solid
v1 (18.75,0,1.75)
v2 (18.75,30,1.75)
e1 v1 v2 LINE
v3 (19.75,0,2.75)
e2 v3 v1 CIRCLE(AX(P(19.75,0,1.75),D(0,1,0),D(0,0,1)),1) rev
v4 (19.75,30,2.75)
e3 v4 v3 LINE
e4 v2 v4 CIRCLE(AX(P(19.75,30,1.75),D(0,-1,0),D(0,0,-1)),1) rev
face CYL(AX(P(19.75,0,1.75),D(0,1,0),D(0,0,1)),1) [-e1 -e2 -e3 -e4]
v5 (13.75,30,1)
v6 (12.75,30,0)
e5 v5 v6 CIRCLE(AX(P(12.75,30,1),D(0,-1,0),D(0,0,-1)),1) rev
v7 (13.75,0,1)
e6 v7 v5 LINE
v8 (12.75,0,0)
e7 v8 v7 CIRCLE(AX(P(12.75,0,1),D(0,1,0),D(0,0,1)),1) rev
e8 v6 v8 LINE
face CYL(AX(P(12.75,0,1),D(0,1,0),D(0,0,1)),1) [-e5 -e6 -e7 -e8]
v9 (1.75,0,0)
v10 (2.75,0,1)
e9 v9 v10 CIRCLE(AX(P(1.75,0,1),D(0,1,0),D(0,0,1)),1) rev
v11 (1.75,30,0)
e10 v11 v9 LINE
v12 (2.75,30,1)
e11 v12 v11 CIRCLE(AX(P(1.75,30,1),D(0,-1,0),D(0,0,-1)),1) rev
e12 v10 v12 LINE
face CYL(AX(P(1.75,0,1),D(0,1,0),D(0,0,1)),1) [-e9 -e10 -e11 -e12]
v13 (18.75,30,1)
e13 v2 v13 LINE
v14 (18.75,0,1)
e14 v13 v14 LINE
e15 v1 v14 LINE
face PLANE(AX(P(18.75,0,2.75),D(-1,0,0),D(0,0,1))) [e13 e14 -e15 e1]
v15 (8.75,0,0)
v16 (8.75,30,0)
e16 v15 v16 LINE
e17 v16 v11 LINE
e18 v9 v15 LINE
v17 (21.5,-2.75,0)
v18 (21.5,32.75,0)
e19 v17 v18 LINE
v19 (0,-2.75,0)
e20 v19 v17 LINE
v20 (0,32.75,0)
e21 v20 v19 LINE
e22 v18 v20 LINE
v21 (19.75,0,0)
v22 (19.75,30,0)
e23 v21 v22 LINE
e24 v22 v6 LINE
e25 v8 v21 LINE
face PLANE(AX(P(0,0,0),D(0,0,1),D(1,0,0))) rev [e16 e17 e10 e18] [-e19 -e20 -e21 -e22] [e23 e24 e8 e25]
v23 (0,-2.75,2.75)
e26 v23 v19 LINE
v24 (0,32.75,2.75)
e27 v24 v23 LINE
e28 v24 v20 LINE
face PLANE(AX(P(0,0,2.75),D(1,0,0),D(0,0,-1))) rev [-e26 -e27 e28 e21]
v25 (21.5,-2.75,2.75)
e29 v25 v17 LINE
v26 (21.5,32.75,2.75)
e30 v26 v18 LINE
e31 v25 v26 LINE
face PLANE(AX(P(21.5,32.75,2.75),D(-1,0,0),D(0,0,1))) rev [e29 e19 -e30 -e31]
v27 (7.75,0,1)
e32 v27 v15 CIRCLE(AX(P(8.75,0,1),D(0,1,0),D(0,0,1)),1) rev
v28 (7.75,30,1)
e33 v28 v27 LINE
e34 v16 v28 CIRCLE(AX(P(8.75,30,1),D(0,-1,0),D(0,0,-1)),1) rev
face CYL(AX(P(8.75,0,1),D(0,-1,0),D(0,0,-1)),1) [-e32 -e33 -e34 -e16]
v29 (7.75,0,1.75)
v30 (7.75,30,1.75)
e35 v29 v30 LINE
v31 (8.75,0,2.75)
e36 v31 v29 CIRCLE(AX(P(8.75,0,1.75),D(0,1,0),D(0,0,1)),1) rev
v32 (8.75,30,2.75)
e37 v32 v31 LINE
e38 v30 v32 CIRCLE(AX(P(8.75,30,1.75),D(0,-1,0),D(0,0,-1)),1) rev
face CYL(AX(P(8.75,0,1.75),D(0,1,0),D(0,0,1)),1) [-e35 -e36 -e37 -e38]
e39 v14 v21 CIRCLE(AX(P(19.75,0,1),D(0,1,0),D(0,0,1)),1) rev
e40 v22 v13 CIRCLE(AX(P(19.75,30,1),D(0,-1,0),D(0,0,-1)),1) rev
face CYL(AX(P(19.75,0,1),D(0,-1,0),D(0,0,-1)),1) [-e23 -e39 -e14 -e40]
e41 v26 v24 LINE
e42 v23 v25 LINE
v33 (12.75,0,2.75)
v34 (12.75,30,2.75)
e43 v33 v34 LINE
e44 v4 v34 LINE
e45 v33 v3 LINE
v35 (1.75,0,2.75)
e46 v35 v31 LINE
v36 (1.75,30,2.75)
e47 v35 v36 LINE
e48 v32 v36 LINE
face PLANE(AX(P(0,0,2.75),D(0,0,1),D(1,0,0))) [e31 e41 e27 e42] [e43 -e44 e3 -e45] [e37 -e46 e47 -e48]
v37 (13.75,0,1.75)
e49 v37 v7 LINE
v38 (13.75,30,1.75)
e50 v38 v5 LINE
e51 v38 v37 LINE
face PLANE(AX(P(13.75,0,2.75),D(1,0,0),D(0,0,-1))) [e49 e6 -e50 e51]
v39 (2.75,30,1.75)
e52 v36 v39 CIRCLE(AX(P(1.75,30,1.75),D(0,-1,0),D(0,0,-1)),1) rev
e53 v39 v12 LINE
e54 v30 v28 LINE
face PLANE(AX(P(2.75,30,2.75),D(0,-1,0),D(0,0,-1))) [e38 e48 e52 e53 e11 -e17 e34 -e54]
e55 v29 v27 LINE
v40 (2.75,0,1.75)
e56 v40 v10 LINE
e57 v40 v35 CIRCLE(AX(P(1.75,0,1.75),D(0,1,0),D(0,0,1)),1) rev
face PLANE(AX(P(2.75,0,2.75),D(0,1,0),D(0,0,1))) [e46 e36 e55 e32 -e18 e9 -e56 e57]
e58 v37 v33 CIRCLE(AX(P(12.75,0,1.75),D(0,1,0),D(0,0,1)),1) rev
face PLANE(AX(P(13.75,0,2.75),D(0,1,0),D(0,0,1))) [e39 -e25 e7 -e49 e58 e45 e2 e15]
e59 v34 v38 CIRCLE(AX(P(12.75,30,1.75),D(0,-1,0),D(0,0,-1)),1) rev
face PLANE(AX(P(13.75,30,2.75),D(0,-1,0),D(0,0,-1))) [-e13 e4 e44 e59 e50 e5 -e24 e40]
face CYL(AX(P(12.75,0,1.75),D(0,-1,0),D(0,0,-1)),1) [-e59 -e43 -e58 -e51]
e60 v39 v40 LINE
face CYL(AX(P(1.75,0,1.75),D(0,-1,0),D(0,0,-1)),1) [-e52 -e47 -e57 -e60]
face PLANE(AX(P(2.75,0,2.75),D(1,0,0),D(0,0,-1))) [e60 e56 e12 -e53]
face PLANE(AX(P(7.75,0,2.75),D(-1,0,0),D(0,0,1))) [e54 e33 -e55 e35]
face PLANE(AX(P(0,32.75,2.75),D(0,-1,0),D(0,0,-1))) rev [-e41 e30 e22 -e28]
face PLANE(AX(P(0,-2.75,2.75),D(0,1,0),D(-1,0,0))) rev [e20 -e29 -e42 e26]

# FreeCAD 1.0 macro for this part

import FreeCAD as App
import Part
import Sketcher


def edges_at(feature, points):
    """Names of the edges that pass closest to the given points."""
    edges = feature.Shape.Edges
    near = lambda p: min(range(len(edges)), key=lambda i: edges[i].distToShape(Part.Vertex(*p))[0])
    return sorted({f"Edge{near(p) + 1}" for p in points})


def add_polygon(sketch, points):
    """Adds a closed chain of lines whose ends are joined by coincident constraints."""
    first, n = sketch.GeometryCount, len(points)
    for a, b in zip(points, points[1:] + points[:1]):
        sketch.addGeometry(Part.LineSegment(App.Vector(*a, 0), App.Vector(*b, 0)), False)
    for i in range(n):
        sketch.addConstraint(Sketcher.Constraint("Coincident", first + i, 2, first + (i + 1) % n, 1))

doc = App.newDocument("Part")
body = doc.addObject("PartDesign::Body", "Body")

# Sketch on XY plane
sketch1 = doc.addObject("Sketcher::SketchObject", "Sketch")
body.addObject(sketch1)
sketch1.AttachmentSupport = (doc.XY_Plane, [""])
sketch1.MapMode = "FlatFace"
add_polygon(sketch1, [(0, 33), (0, -3), (22, -3), (22, 33)])  # lines 0-3
add_polygon(sketch1, [(14, 0), (14, 30), (19, 30), (19, 0)])  # lines 4-7
add_polygon(sketch1, [(3, 0), (3, 30), (8, 30), (8, 0)])  # lines 8-11
sketch1.addConstraint(Sketcher.Constraint("Vertical", 0))
sketch1.addConstraint(Sketcher.Constraint("Horizontal", 1))
sketch1.addConstraint(Sketcher.Constraint("Vertical", 2))
sketch1.addConstraint(Sketcher.Constraint("Horizontal", 3))
sketch1.addConstraint(Sketcher.Constraint("Vertical", 4))
sketch1.addConstraint(Sketcher.Constraint("Horizontal", 5))
sketch1.addConstraint(Sketcher.Constraint("Vertical", 6))
sketch1.addConstraint(Sketcher.Constraint("Horizontal", 7))
sketch1.addConstraint(Sketcher.Constraint("Vertical", 8))
sketch1.addConstraint(Sketcher.Constraint("Horizontal", 9))
sketch1.addConstraint(Sketcher.Constraint("Vertical", 10))
sketch1.addConstraint(Sketcher.Constraint("Horizontal", 11))
sketch1.addConstraint(Sketcher.Constraint("PointOnObject", 0, 2, -2))
sketch1.addConstraint(Sketcher.Constraint("PointOnObject", 6, 2, -1))
sketch1.addConstraint(Sketcher.Constraint("PointOnObject", 10, 2, -1))
sketch1.addConstraint(Sketcher.Constraint("Horizontal", 5, 2, 8, 2))
sketch1.addConstraint(Sketcher.Constraint("Equal", 7, 9))
sketch1.addConstraint(Sketcher.Constraint("DistanceX", 5, 1, 5, 2, 5.0))
sketch1.addConstraint(Sketcher.Constraint("DistanceY", 4, 1, 4, 2, 30.0))
sketch1.addConstraint(Sketcher.Constraint("DistanceX", 1, 1, 1, 2, 21.5))
sketch1.addConstraint(Sketcher.Constraint("DistanceY", 0, 2, 0, 1, 35.5))
sketch1.addConstraint(Sketcher.Constraint("DistanceX", 8, 2, 4, 2, 11.0))
sketch1.addConstraint(Sketcher.Constraint("DistanceY", 0, 2, -1, 1, 2.75))
sketch1.addConstraint(Sketcher.Constraint("DistanceX", -1, 1, 4, 2, 13.75))
pad1 = doc.addObject("PartDesign::Pad", "Pad")
body.addObject(pad1)
pad1.Profile = sketch1
pad1.Length = 2.75
doc.recompute()

fillet = doc.addObject("PartDesign::Fillet", "Fillet")
body.addObject(fillet)
fillet.Base = (pad1, edges_at(pad1, [
    (2.75, 15, 0),
    (7.75, 15, 0),
    (2.75, 15, 2.75),
    (7.75, 15, 2.75),
    (13.75, 15, 0),
    (18.75, 15, 0),
    (13.75, 15, 2.75),
    (18.75, 15, 2.75),
]))
fillet.Radius = 1

doc.recompute()
